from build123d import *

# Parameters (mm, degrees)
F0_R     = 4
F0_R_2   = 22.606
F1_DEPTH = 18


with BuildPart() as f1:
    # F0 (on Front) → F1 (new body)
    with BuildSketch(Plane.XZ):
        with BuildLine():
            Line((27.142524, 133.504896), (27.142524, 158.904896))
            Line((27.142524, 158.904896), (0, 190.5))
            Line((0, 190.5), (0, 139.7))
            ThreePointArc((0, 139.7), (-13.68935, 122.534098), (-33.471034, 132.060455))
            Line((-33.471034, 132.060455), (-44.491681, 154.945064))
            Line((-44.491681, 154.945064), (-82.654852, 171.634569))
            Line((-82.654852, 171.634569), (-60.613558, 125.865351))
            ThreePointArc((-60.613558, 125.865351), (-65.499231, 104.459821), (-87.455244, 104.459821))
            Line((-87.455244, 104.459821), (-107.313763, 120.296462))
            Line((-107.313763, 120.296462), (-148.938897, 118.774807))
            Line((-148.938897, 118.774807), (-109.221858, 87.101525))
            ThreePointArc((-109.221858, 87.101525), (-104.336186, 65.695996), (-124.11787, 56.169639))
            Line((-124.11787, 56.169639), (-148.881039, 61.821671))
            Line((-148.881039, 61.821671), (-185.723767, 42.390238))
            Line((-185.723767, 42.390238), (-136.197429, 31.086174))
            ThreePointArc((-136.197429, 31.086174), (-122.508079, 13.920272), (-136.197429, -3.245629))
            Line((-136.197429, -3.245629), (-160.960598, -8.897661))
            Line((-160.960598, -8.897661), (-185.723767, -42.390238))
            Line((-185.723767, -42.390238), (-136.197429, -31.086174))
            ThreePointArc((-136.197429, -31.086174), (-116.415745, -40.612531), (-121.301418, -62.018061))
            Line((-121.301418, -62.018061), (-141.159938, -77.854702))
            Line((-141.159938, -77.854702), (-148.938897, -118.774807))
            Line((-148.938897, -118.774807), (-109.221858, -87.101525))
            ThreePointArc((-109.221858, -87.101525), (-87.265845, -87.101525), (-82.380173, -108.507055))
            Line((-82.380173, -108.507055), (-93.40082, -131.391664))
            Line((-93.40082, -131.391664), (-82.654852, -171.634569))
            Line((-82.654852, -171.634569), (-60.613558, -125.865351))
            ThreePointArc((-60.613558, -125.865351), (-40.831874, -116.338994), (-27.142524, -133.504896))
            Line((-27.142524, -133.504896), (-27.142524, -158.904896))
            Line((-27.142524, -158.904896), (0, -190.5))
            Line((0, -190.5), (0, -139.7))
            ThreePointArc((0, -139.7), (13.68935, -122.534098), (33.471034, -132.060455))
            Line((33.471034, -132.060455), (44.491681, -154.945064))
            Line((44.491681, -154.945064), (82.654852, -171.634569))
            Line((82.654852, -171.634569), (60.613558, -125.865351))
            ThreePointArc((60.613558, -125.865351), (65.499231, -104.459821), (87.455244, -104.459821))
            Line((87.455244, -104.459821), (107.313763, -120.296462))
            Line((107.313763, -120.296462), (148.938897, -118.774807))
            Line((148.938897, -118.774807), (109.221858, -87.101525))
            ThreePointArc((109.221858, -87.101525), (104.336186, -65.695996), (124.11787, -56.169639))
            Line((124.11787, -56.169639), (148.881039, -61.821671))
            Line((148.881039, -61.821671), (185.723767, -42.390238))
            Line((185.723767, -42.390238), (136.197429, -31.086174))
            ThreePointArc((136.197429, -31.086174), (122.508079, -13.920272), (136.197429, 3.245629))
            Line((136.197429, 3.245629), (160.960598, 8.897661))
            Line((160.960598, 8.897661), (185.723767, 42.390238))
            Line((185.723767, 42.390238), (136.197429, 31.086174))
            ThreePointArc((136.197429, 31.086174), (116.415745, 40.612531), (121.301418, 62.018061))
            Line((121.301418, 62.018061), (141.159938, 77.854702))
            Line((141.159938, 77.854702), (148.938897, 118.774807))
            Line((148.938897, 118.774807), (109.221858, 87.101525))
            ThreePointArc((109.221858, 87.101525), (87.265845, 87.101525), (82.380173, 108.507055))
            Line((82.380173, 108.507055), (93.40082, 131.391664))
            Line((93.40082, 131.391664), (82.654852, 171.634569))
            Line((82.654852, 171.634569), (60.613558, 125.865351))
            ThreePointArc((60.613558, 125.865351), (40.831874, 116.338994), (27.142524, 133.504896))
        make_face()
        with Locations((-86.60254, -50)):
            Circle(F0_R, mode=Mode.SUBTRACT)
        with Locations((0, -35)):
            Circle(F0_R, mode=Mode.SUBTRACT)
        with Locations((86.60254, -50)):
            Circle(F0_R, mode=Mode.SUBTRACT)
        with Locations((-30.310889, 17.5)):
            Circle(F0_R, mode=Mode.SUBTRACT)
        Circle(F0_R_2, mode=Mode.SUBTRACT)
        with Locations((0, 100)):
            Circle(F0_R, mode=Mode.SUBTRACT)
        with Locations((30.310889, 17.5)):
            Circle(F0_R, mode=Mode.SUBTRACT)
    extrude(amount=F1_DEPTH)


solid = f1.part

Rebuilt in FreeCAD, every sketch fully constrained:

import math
import FreeCAD as App
import Part
import Sketcher

V = App.Vector
Q = App.Units.Quantity

doc = App.newDocument("Part")
body = doc.addObject("PartDesign::Body", "Body")

sketch1 = body.newObject("Sketcher::SketchObject", "Sketch")
sketch1.AttachmentSupport = (doc.getObject("XZ_Plane"), [""])
sketch1.MapMode = "FlatFace"
sketch1.addGeometry([
    Part.LineSegment(V(27.1, 133.5, 0), V(27.1, 158.9, 0)),
    Part.LineSegment(V(27.1, 158.9, 0), V(0, 190.5, 0)),
    Part.LineSegment(V(0, 190.5, 0), V(0, 139.7, 0)),
    Part.ArcOfCircle(Part.Circle(V(-17.6, 139.7, 0), V(0, 0, 1), 17.6), math.radians(-154), math.radians(0)),
    Part.LineSegment(V(-33.5, 132.1, 0), V(-44.5, 154.9, 0)),
    Part.LineSegment(V(-44.5, 154.9, 0), V(-82.7, 171.6, 0)),
    Part.LineSegment(V(-82.7, 171.6, 0), V(-60.6, 125.9, 0)),
    Part.ArcOfCircle(Part.Circle(V(-76.5, 118.2, 0), V(0, 0, 1), 17.6), math.radians(-129), math.radians(26)),
    Part.LineSegment(V(-87.5, 104.5, 0), V(-107.3, 120.3, 0)),
    Part.LineSegment(V(-107.3, 120.3, 0), V(-148.9, 118.8, 0)),
    Part.LineSegment(V(-148.9, 118.8, 0), V(-109.2, 87.1, 0)),
    Part.ArcOfCircle(Part.Circle(V(-120.2, 73.3, 0), V(0, 0, 1), 17.6), math.radians(-103), math.radians(51)),
    Part.LineSegment(V(-124.1, 56.2, 0), V(-148.9, 61.8, 0)),
    Part.LineSegment(V(-148.9, 61.8, 0), V(-185.7, 42.4, 0)),
    Part.LineSegment(V(-185.7, 42.4, 0), V(-136.2, 31.1, 0)),
    Part.ArcOfCircle(Part.Circle(V(-140.1, 13.9, 0), V(0, 0, 1), 17.6), math.radians(-77), math.radians(77)),
    Part.LineSegment(V(-136.2, -3.2, 0), V(-161, -8.9, 0)),
    Part.LineSegment(V(-161, -8.9, 0), V(-185.7, -42.4, 0)),
    Part.LineSegment(V(-185.7, -42.4, 0), V(-136.2, -31.1, 0)),
    Part.ArcOfCircle(Part.Circle(V(-132.3, -48.3, 0), V(0, 0, 1), 17.6), math.radians(-51), math.radians(103)),
    Part.LineSegment(V(-121.3, -62, 0), V(-141.2, -77.9, 0)),
    Part.LineSegment(V(-141.2, -77.9, 0), V(-148.9, -118.8, 0)),
    Part.LineSegment(V(-148.9, -118.8, 0), V(-109.2, -87.1, 0)),
    Part.ArcOfCircle(Part.Circle(V(-98.2, -100.9, 0), V(0, 0, 1), 17.6), math.radians(-26), math.radians(129)),
    Part.LineSegment(V(-82.4, -108.5, 0), V(-93.4, -131.4, 0)),
    Part.LineSegment(V(-93.4, -131.4, 0), V(-82.7, -171.6, 0)),
    Part.LineSegment(V(-82.7, -171.6, 0), V(-60.6, -125.9, 0)),
    Part.ArcOfCircle(Part.Circle(V(-44.7, -133.5, 0), V(0, 0, 1), 17.6), math.radians(0), math.radians(154)),
    Part.LineSegment(V(-27.1, -133.5, 0), V(-27.1, -158.9, 0)),
    Part.LineSegment(V(-27.1, -158.9, 0), V(0, -190.5, 0)),
    Part.LineSegment(V(0, -190.5, 0), V(0, -139.7, 0)),
    Part.ArcOfCircle(Part.Circle(V(17.6, -139.7, 0), V(0, 0, 1), 17.6), math.radians(26), math.radians(180)),
    Part.LineSegment(V(33.5, -132.1, 0), V(44.5, -154.9, 0)),
    Part.LineSegment(V(44.5, -154.9, 0), V(82.7, -171.6, 0)),
    Part.LineSegment(V(82.7, -171.6, 0), V(60.6, -125.9, 0)),
    Part.ArcOfCircle(Part.Circle(V(76.5, -118.2, 0), V(0, 0, 1), 17.6), math.radians(51), math.radians(206)),
    Part.LineSegment(V(87.5, -104.5, 0), V(107.3, -120.3, 0)),
    Part.LineSegment(V(107.3, -120.3, 0), V(148.9, -118.8, 0)),
    Part.LineSegment(V(148.9, -118.8, 0), V(109.2, -87.1, 0)),
    Part.ArcOfCircle(Part.Circle(V(120.2, -73.3, 0), V(0, 0, 1), 17.6), math.radians(77), math.radians(231)),
    Part.LineSegment(V(124.1, -56.2, 0), V(148.9, -61.8, 0)),
    Part.LineSegment(V(148.9, -61.8, 0), V(185.7, -42.4, 0)),
    Part.LineSegment(V(185.7, -42.4, 0), V(136.2, -31.1, 0)),
    Part.ArcOfCircle(Part.Circle(V(140.1, -13.9, 0), V(0, 0, 1), 17.6), math.radians(103), math.radians(257)),
    Part.LineSegment(V(136.2, 3.2, 0), V(161, 8.9, 0)),
    Part.LineSegment(V(161, 8.9, 0), V(185.7, 42.4, 0)),
    Part.LineSegment(V(185.7, 42.4, 0), V(136.2, 31.1, 0)),
    Part.ArcOfCircle(Part.Circle(V(132.3, 48.3, 0), V(0, 0, 1), 17.6), math.radians(129), math.radians(283)),
    Part.LineSegment(V(121.3, 62, 0), V(141.2, 77.9, 0)),
    Part.LineSegment(V(141.2, 77.9, 0), V(148.9, 118.8, 0)),
    Part.LineSegment(V(148.9, 118.8, 0), V(109.2, 87.1, 0)),
    Part.ArcOfCircle(Part.Circle(V(98.2, 100.9, 0), V(0, 0, 1), 17.6), math.radians(154), math.radians(309)),
    Part.LineSegment(V(82.4, 108.5, 0), V(93.4, 131.4, 0)),
    Part.LineSegment(V(93.4, 131.4, 0), V(82.7, 171.6, 0)),
    Part.LineSegment(V(82.7, 171.6, 0), V(60.6, 125.9, 0)),
    Part.ArcOfCircle(Part.Circle(V(44.7, 133.5, 0), V(0, 0, 1), 17.6), math.radians(180), math.radians(334)),
    Part.Circle(V(-86.6, -50, 0), V(0, 0, 1), 4),
    Part.Circle(V(-30.3, 17.5, 0), V(0, 0, 1), 4),
    Part.Circle(V(0, -35, 0), V(0, 0, 1), 4),
    Part.Circle(V(86.6, -50, 0), V(0, 0, 1), 4),
    Part.Circle(V(0, 0, 0), V(0, 0, 1), 22.6),
    Part.Circle(V(30.3, 17.5, 0), V(0, 0, 1), 4),
    Part.Circle(V(0, 100, 0), V(0, 0, 1), 4),
], False)
sketch1.addConstraint([
    Sketcher.Constraint("Coincident", 0, 2, 1, 1),
    Sketcher.Constraint("Coincident", 1, 2, 2, 1),
    Sketcher.Constraint("Tangent", 2, 2, 3, 2),
    Sketcher.Constraint("Tangent", 3, 1, 4, 1),
    Sketcher.Constraint("Coincident", 4, 2, 5, 1),
    Sketcher.Constraint("Coincident", 5, 2, 6, 1),
    Sketcher.Constraint("Tangent", 6, 2, 7, 2),
    Sketcher.Constraint("Tangent", 7, 1, 8, 1),
    Sketcher.Constraint("Coincident", 8, 2, 9, 1),
    Sketcher.Constraint("Coincident", 9, 2, 10, 1),
    Sketcher.Constraint("Tangent", 10, 2, 11, 2),
    Sketcher.Constraint("Tangent", 11, 1, 12, 1),
    Sketcher.Constraint("Coincident", 12, 2, 13, 1),
    Sketcher.Constraint("Coincident", 13, 2, 14, 1),
    Sketcher.Constraint("Tangent", 14, 2, 15, 2),
    Sketcher.Constraint("Tangent", 15, 1, 16, 1),
    Sketcher.Constraint("Coincident", 16, 2, 17, 1),
    Sketcher.Constraint("Coincident", 17, 2, 18, 1),
    Sketcher.Constraint("Tangent", 18, 2, 19, 2),
    Sketcher.Constraint("Tangent", 19, 1, 20, 1),
    Sketcher.Constraint("Coincident", 20, 2, 21, 1),
    Sketcher.Constraint("Coincident", 21, 2, 22, 1),
    Sketcher.Constraint("Tangent", 22, 2, 23, 2),
    Sketcher.Constraint("Tangent", 23, 1, 24, 1),
    Sketcher.Constraint("Coincident", 24, 2, 25, 1),
    Sketcher.Constraint("Coincident", 25, 2, 26, 1),
    Sketcher.Constraint("Tangent", 26, 2, 27, 2),
    Sketcher.Constraint("Tangent", 27, 1, 28, 1),
    Sketcher.Constraint("Coincident", 28, 2, 29, 1),
    Sketcher.Constraint("Coincident", 29, 2, 30, 1),
    Sketcher.Constraint("Tangent", 30, 2, 31, 2),
    Sketcher.Constraint("Tangent", 31, 1, 32, 1),
    Sketcher.Constraint("Coincident", 32, 2, 33, 1),
    Sketcher.Constraint("Coincident", 33, 2, 34, 1),
    Sketcher.Constraint("Tangent", 34, 2, 35, 2),
    Sketcher.Constraint("Tangent", 35, 1, 36, 1),
    Sketcher.Constraint("Coincident", 36, 2, 37, 1),
    Sketcher.Constraint("Coincident", 37, 2, 38, 1),
    Sketcher.Constraint("Tangent", 38, 2, 39, 2),
    Sketcher.Constraint("Tangent", 39, 1, 40, 1),
    Sketcher.Constraint("Coincident", 40, 2, 41, 1),
    Sketcher.Constraint("Coincident", 41, 2, 42, 1),
    Sketcher.Constraint("Tangent", 42, 2, 43, 2),
    Sketcher.Constraint("Tangent", 43, 1, 44, 1),
    Sketcher.Constraint("Coincident", 44, 2, 45, 1),
    Sketcher.Constraint("Coincident", 45, 2, 46, 1),
    Sketcher.Constraint("Tangent", 46, 2, 47, 2),
    Sketcher.Constraint("Tangent", 47, 1, 48, 1),
    Sketcher.Constraint("Coincident", 48, 2, 49, 1),
    Sketcher.Constraint("Coincident", 49, 2, 50, 1),
    Sketcher.Constraint("Tangent", 50, 2, 51, 2),
    Sketcher.Constraint("Tangent", 51, 1, 52, 1),
    Sketcher.Constraint("Coincident", 52, 2, 53, 1),
    Sketcher.Constraint("Coincident", 53, 2, 54, 1),
    Sketcher.Constraint("Tangent", 54, 2, 55, 2),
    Sketcher.Constraint("Tangent", 55, 1, 0, 1),
    Sketcher.Constraint("Vertical", 0),
    Sketcher.Constraint("Vertical", 2),
    Sketcher.Constraint("Vertical", 28),
    Sketcher.Constraint("Vertical", 30),
    Sketcher.Constraint("Coincident", 60, 3, -1, 1),
    Sketcher.Constraint("Equal", 3, 7),
    Sketcher.Constraint("Equal", 7, 11),
    Sketcher.Constraint("Equal", 11, 15),
    Sketcher.Constraint("Equal", 15, 19),
    Sketcher.Constraint("Equal", 19, 23),
    Sketcher.Constraint("Equal", 23, 27),
    Sketcher.Constraint("Equal", 27, 31),
    Sketcher.Constraint("Equal", 31, 35),
    Sketcher.Constraint("Equal", 35, 39),
    Sketcher.Constraint("Equal", 39, 43),
    Sketcher.Constraint("Equal", 43, 47),
    Sketcher.Constraint("Equal", 47, 51),
    Sketcher.Constraint("Equal", 51, 55),
    Sketcher.Constraint("Equal", 56, 57),
    Sketcher.Constraint("Equal", 57, 58),
    Sketcher.Constraint("Equal", 58, 59),
    Sketcher.Constraint("Equal", 59, 61),
    Sketcher.Constraint("Equal", 61, 62),
    Sketcher.Constraint("Symmetric", 3, 3, 31, 3, -1, 1),
    Sketcher.Constraint("Symmetric", 7, 3, 35, 3, -1, 1),
    Sketcher.Constraint("Symmetric", 11, 3, 39, 3, -1, 1),
    Sketcher.Constraint("Symmetric", 15, 3, 43, 3, -1, 1),
    Sketcher.Constraint("Symmetric", 19, 3, 47, 3, -1, 1),
    Sketcher.Constraint("Symmetric", 23, 3, 51, 3, -1, 1),
    Sketcher.Constraint("Symmetric", 27, 3, 55, 3, -1, 1),
    Sketcher.Constraint("Symmetric", 4, 2, 32, 2, -1, 1),
    Sketcher.Constraint("Symmetric", 5, 2, 33, 2, -1, 1),
    Sketcher.Constraint("Symmetric", 8, 2, 36, 2, -1, 1),
    Sketcher.Constraint("Symmetric", 9, 2, 37, 2, -1, 1),
    Sketcher.Constraint("Symmetric", 12, 2, 40, 2, -1, 1),
    Sketcher.Constraint("Symmetric", 13, 2, 41, 2, -1, 1),
    Sketcher.Constraint("Symmetric", 16, 2, 44, 2, -1, 1),
    Sketcher.Constraint("Symmetric", 17, 2, 45, 2, -1, 1),
    Sketcher.Constraint("Symmetric", 20, 2, 48, 2, -1, 1),
    Sketcher.Constraint("Symmetric", 21, 2, 49, 2, -1, 1),
    Sketcher.Constraint("Symmetric", 24, 2, 52, 2, -1, 1),
    Sketcher.Constraint("Symmetric", 25, 2, 53, 2, -1, 1),
    Sketcher.Constraint("Symmetric", 56, 3, 59, 3, -2),
    Sketcher.Constraint("Symmetric", 57, 3, 61, 3, -2),
    Sketcher.Constraint("Symmetric", 25, 2, 33, 2, -2),
    Sketcher.Constraint("Symmetric", 26, 2, 34, 2, -2),
    Sketcher.Constraint("Symmetric", 21, 2, 37, 2, -2),
    Sketcher.Constraint("Symmetric", 22, 2, 38, 2, -2),
    Sketcher.Constraint("Symmetric", 17, 2, 41, 2, -2),
    Sketcher.Constraint("Symmetric", 18, 2, 42, 2, -2),
    Sketcher.Constraint("Symmetric", 1, 2, 29, 2, -1),
    Sketcher.Constraint("PointOnObject", 58, 3, -2),
    Sketcher.Constraint("PointOnObject", 62, 3, -2),
    Sketcher.Constraint("Parallel", 4, 6),
    Sketcher.Constraint("Parallel", 8, 10),
    Sketcher.Constraint("Parallel", 12, 14),
    Sketcher.Constraint("Parallel", 16, 18),
    Sketcher.Constraint("Parallel", 20, 22),
    Sketcher.Constraint("Parallel", 24, 26),
    Sketcher.Constraint("Parallel", 1, 29),
    Sketcher.Constraint("Equal", 1, 5),
    Sketcher.Constraint("Equal", 4, 8),
    Sketcher.Constraint("Equal", 5, 9),
    Sketcher.Constraint("Equal", 6, 10),
    Sketcher.Constraint("Equal", 8, 12),
    Sketcher.Constraint("Equal", 9, 13),
    Sketcher.Constraint("Equal", 10, 14),
    Sketcher.Constraint("Equal", 12, 16),
    Sketcher.Constraint("Equal", 13, 17),
    Sketcher.Constraint("Equal", 16, 20),
    Sketcher.Constraint("Equal", 17, 21),
    Sketcher.Constraint("Equal", 20, 24),
    Sketcher.Constraint("Equal", 21, 25),
    Sketcher.Constraint("Diameter", 60, Q("1.78 in")),
    Sketcher.Constraint("DistanceY", 0, 1, 0, 2, Q("1 in")),
    Sketcher.Constraint("DistanceY", 2, 2, 2, 1, Q("2 in")),
    Sketcher.Constraint("Distance", 4, Q("1 in")),
    Sketcher.Constraint("Distance", 6, Q("2 in")),
    Sketcher.Constraint("DistanceY", -1, 1, 3, 3, Q("5.5 in")),
    Sketcher.Constraint("Diameter", 56, 8.0),
    Sketcher.Constraint("DistanceY", 24, 2, -1, 1, Q("5.1729002 in")),
    Sketcher.Constraint("Radius", 3, 17.607355),
    Sketcher.Constraint("DistanceY", 56, 3, -1, 1, 50.0),
    Sketcher.Constraint("DistanceY", -1, 1, 57, 3, 17.5),
    Sketcher.Constraint("DistanceY", 58, 3, -1, 1, 35.0),
    Sketcher.Constraint("DistanceY", -1, 1, 62, 3, 100.0),
    Sketcher.Constraint("DistanceX", 16, 2, -1, 1, 160.960598),
    Sketcher.Constraint("Distance", 17, 41.652938),
    Sketcher.Constraint("DistanceX", 56, 3, -1, 1, 86.60254),
    Sketcher.Constraint("DistanceX", 57, 3, -1, 1, 30.310889),
])
pad1 = body.newObject("PartDesign::Pad", "Pad")
pad1.Profile = sketch1
pad1.Length = 18

doc.recompute()
